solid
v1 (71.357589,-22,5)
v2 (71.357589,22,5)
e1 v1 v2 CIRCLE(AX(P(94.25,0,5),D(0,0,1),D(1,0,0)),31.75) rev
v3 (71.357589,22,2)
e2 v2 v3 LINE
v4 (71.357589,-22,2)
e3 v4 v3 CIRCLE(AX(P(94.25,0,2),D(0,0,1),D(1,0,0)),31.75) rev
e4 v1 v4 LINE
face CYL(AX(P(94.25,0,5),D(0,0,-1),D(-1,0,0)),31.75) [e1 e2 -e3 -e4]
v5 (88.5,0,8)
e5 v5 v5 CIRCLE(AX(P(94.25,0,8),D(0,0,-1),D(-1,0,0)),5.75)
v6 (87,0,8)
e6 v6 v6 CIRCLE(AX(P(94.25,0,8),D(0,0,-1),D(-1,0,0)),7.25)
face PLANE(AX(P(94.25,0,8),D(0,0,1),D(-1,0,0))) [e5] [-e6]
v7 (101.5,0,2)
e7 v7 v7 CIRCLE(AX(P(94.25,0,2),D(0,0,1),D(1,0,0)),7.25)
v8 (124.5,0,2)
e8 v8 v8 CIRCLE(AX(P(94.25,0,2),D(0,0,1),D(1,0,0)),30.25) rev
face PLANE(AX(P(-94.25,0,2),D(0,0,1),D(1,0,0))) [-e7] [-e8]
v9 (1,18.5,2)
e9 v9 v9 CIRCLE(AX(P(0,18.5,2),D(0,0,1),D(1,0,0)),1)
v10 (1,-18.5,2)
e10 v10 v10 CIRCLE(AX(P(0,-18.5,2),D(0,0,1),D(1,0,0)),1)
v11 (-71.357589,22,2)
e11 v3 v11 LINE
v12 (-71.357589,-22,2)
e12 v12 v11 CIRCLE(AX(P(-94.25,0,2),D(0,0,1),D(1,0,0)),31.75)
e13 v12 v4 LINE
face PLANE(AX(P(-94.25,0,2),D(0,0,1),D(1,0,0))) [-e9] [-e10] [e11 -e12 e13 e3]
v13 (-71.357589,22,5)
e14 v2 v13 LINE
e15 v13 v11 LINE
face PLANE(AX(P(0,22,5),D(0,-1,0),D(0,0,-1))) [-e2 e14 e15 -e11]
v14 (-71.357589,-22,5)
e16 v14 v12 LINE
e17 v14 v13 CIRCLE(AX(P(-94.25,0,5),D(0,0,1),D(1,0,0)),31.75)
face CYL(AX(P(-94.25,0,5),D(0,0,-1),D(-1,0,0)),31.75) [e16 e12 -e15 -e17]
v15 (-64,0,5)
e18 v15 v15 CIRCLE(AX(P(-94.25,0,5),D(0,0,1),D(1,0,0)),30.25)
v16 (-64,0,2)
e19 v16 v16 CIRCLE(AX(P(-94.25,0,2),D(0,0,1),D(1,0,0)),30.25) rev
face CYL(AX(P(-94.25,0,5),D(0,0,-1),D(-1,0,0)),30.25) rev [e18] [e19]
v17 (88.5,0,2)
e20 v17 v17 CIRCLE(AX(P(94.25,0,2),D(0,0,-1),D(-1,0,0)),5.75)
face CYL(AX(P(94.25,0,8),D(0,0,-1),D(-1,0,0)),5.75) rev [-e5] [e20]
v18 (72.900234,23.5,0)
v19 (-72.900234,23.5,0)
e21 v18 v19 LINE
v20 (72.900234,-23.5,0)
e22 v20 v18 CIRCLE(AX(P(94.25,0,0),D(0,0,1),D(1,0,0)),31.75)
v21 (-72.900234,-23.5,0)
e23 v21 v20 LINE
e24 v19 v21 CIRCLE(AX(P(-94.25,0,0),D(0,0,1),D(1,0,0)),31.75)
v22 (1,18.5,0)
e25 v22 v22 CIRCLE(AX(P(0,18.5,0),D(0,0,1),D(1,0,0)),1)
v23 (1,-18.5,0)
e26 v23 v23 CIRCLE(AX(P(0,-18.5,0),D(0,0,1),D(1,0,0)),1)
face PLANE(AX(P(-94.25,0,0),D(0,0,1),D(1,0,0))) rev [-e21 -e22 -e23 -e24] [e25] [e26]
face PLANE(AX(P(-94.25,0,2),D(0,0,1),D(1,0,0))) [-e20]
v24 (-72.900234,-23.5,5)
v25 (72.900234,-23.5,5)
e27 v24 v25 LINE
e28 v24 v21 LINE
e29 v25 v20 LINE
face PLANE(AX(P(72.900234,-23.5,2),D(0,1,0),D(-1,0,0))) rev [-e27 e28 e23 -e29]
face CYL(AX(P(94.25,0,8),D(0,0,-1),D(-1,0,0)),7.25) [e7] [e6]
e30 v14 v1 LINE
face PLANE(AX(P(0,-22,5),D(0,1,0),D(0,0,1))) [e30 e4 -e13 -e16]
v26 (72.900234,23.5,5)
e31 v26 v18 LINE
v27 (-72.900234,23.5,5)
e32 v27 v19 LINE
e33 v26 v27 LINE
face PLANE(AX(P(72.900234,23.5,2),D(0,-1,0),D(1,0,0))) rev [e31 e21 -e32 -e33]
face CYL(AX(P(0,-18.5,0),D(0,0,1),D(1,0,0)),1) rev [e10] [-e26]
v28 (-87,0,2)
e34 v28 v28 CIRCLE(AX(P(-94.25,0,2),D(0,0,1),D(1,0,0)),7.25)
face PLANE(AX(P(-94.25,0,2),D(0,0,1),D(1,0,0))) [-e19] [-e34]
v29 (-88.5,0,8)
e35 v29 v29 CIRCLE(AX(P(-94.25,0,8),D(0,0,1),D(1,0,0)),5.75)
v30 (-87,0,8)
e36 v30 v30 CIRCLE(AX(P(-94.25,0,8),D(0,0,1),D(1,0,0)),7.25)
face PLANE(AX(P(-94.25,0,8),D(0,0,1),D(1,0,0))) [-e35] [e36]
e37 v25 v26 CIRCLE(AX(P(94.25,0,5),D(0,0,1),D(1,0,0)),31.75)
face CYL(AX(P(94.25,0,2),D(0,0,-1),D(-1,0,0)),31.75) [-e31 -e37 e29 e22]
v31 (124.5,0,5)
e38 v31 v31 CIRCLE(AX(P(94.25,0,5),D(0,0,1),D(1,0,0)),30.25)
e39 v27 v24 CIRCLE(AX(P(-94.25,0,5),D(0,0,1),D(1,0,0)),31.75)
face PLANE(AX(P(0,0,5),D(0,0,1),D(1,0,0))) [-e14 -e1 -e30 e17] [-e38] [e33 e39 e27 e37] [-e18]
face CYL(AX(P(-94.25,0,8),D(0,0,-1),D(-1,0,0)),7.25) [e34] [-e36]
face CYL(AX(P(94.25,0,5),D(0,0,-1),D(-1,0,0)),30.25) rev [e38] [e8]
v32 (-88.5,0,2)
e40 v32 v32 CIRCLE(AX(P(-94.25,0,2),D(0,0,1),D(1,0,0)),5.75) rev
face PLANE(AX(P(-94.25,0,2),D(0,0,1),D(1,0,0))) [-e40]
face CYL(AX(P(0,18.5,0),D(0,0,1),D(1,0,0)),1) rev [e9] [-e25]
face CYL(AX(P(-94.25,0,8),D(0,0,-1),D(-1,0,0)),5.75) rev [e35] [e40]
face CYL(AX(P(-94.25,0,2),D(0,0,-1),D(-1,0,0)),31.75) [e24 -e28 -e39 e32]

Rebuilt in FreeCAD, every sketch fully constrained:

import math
import FreeCAD as App
import Part
import Sketcher

V = App.Vector
Q = App.Units.Quantity

doc = App.newDocument("Part")
body = doc.addObject("PartDesign::Body", "Body")

# Sketch on XY plane
sketch1 = body.newObject("Sketcher::SketchObject", "Sketch")
sketch1.AttachmentSupport = (doc.getObject("XY_Plane"), [""])
sketch1.MapMode = "FlatFace"
sketch1.addGeometry(Part.LineSegment(V(-73, -24, 0), V(73, -24, 0)), False)
sketch1.addGeometry(Part.ArcOfCircle(Part.Circle(V(94, 0, 0), V(0, 0, 1), 32), math.radians(-132), math.radians(132)), False)
sketch1.addGeometry(Part.LineSegment(V(73, 24, 0), V(-73, 24, 0)), False)
sketch1.addGeometry(Part.ArcOfCircle(Part.Circle(V(-94, 0, 0), V(0, 0, 1), 32), math.radians(48), math.radians(312)), False)
sketch1.addConstraint(Sketcher.Constraint("Coincident", 0, 2, 1, 1))
sketch1.addConstraint(Sketcher.Constraint("Coincident", 1, 2, 2, 1))
sketch1.addConstraint(Sketcher.Constraint("Coincident", 2, 2, 3, 1))
sketch1.addConstraint(Sketcher.Constraint("Coincident", 3, 2, 0, 1))
sketch1.addConstraint(Sketcher.Constraint("Horizontal", 0))
sketch1.addConstraint(Sketcher.Constraint("Horizontal", 2))
sketch1.addConstraint(Sketcher.Constraint("Equal", 1, 3))
sketch1.addConstraint(Sketcher.Constraint("Symmetric", 1, 3, 3, 3, -1, 1))
sketch1.addConstraint(Sketcher.Constraint("Symmetric", 0, 2, 1, 2, -1))
sketch1.addConstraint(Sketcher.Constraint("Radius", 1, Q("31.75 mm")))
sketch1.addConstraint(Sketcher.Constraint("DistanceY", 0, 2, 1, 2, Q("47 mm")))
sketch1.addConstraint(Sketcher.Constraint("DistanceX", 3, 3, 1, 3, Q("188.5 mm")))
pad1 = body.newObject("PartDesign::Pad", "Pad")
pad1.Profile = sketch1
pad1.Length = 2

# Sketch on XY plane
sketch2 = body.newObject("Sketcher::SketchObject", "Sketch001")
sketch2.AttachmentSupport = (doc.getObject("XY_Plane"), [""])
sketch2.MapMode = "FlatFace"
sketch2.AttachmentOffset = App.Placement(V(0, 0, 2), App.Rotation())
sketch2.addGeometry(Part.ArcOfCircle(Part.Circle(V(-94, 0, 0), V(0, 0, 1), 32), math.radians(48), math.radians(312)), False)
sketch2.addGeometry(Part.LineSegment(V(-73, -24, 0), V(73, -24, 0)), False)
sketch2.addGeometry(Part.ArcOfCircle(Part.Circle(V(94, 0, 0), V(0, 0, 1), 32), math.radians(-132), math.radians(132)), False)
sketch2.addGeometry(Part.LineSegment(V(73, 24, 0), V(-73, 24, 0)), False)
sketch2.addGeometry(Part.ArcOfCircle(Part.Circle(V(-94, 0, 0), V(0, 0, 1), 30), math.radians(-47), math.radians(0)), False)
sketch2.addGeometry(Part.ArcOfCircle(Part.Circle(V(-94, 0, 0), V(0, 0, 1), 30), math.radians(47), math.radians(313)), False)
sketch2.addGeometry(Part.ArcOfCircle(Part.Circle(V(-94, 0, 0), V(0, 0, 1), 30), math.radians(0), math.radians(47)), False)
sketch2.addGeometry(Part.ArcOfCircle(Part.Circle(V(94, 0, 0), V(0, 0, 1), 32), math.radians(136), math.radians(224)), False)
sketch2.addGeometry(Part.LineSegment(V(71, -22, 0), V(-71, -22, 0)), False)
sketch2.addGeometry(Part.ArcOfCircle(Part.Circle(V(-94, 0, 0), V(0, 0, 1), 32), math.radians(-44), math.radians(44)), False)
sketch2.addGeometry(Part.LineSegment(V(-71, 22, 0), V(71, 22, 0)), False)
sketch2.addGeometry(Part.ArcOfCircle(Part.Circle(V(94, 0, 0), V(0, 0, 1), 30), math.radians(0), math.radians(133)), False)
sketch2.addGeometry(Part.ArcOfCircle(Part.Circle(V(94, 0, 0), V(0, 0, 1), 30), math.radians(-133), math.radians(0)), False)
sketch2.addGeometry(Part.ArcOfCircle(Part.Circle(V(94, 0, 0), V(0, 0, 1), 30), math.radians(133), math.radians(227)), False)
sketch2.addConstraint(Sketcher.Constraint("Coincident", 0, 2, 1, 1))
sketch2.addConstraint(Sketcher.Constraint("Coincident", 1, 2, 2, 1))
sketch2.addConstraint(Sketcher.Constraint("Coincident", 2, 2, 3, 1))
sketch2.addConstraint(Sketcher.Constraint("Coincident", 3, 2, 0, 1))
sketch2.addConstraint(Sketcher.Constraint("Tangent", 4, 1, 5, 2))
sketch2.addConstraint(Sketcher.Constraint("Tangent", 5, 1, 6, 2))
sketch2.addConstraint(Sketcher.Constraint("Tangent", 6, 1, 4, 2))
sketch2.addConstraint(Sketcher.Constraint("Coincident", 7, 2, 8, 1))
sketch2.addConstraint(Sketcher.Constraint("Coincident", 8, 2, 9, 1))
sketch2.addConstraint(Sketcher.Constraint("Coincident", 9, 2, 10, 1))
sketch2.addConstraint(Sketcher.Constraint("Coincident", 10, 2, 7, 1))
sketch2.addConstraint(Sketcher.Constraint("Tangent", 11, 1, 12, 2))
sketch2.addConstraint(Sketcher.Constraint("Tangent", 12, 1, 13, 2))
sketch2.addConstraint(Sketcher.Constraint("Tangent", 13, 1, 11, 2))
sketch2.addConstraint(Sketcher.Constraint("Horizontal", 1))
sketch2.addConstraint(Sketcher.Constraint("Horizontal", 3))
sketch2.addConstraint(Sketcher.Constraint("Horizontal", 8))
sketch2.addConstraint(Sketcher.Constraint("Horizontal", 10))
sketch2.addConstraint(Sketcher.Constraint("Coincident", 4, 3, 0, 3))
sketch2.addConstraint(Sketcher.Constraint("Coincident", 7, 3, 2, 3))
sketch2.addConstraint(Sketcher.Constraint("Coincident", 9, 3, 0, 3))
sketch2.addConstraint(Sketcher.Constraint("Coincident", 11, 3, 2, 3))
sketch2.addConstraint(Sketcher.Constraint("Equal", 0, 2))
sketch2.addConstraint(Sketcher.Constraint("Equal", 2, 7))
sketch2.addConstraint(Sketcher.Constraint("Equal", 7, 9))
sketch2.addConstraint(Sketcher.Constraint("Equal", 6, 11))
sketch2.addConstraint(Sketcher.Constraint("Symmetric", 0, 3, 2, 3, -1, 1))
sketch2.addConstraint(Sketcher.Constraint("Symmetric", 4, 1, 12, 1, -2))
sketch2.addConstraint(Sketcher.Constraint("PointOnObject", 6, 1, -1))
sketch2.addConstraint(Sketcher.Constraint("PointOnObject", 11, 1, -1))
sketch2.addConstraint(Sketcher.Constraint("Horizontal", 4, 1, 7, 2))
sketch2.addConstraint(Sketcher.Constraint("Horizontal", 5, 1, 9, 2))
sketch2.addConstraint(Sketcher.Constraint("Horizontal", 10, 2, 13, 1))
sketch2.addConstraint(Sketcher.Constraint("Vertical", 1, 2, 2, 2))
sketch2.addConstraint(Sketcher.Constraint("Vertical", 4, 1, 5, 1))
sketch2.addConstraint(Sketcher.Constraint("Radius", 0, Q("31.75 mm")))
sketch2.addConstraint(Sketcher.Constraint("Radius", 4, Q("30.25 mm")))
sketch2.addConstraint(Sketcher.Constraint("DistanceY", 4, 1, -1, 1, Q("22 mm")))
sketch2.addConstraint(Sketcher.Constraint("DistanceX", 6, 1, -1, 1, Q("64 mm")))
sketch2.addConstraint(Sketcher.Constraint("DistanceY", 0, 2, -1, 1, Q("23.5 mm")))
pad2 = body.newObject("PartDesign::Pad", "Pad001")
pad2.Profile = sketch2
pad2.Length = 3

# Sketch on XY plane
sketch3 = body.newObject("Sketcher::SketchObject", "Sketch002")
sketch3.AttachmentSupport = (doc.getObject("XY_Plane"), [""])
sketch3.MapMode = "FlatFace"
sketch3.AttachmentOffset = App.Placement(V(0, 0, 2), App.Rotation())
sketch3.addGeometry(Part.Circle(V(0, -18.5, 0), V(0, 0, 1), 1), False)
sketch3.addGeometry(Part.Circle(V(0, 18.5, 0), V(0, 0, 1), 1), False)
sketch3.addConstraint(Sketcher.Constraint("Equal", 0, 1))
sketch3.addConstraint(Sketcher.Constraint("Symmetric", 0, 3, 1, 3, -1, 1))
sketch3.addConstraint(Sketcher.Constraint("PointOnObject", 0, 3, -2))
sketch3.addConstraint(Sketcher.Constraint("Diameter", 0, Q("2 mm")))
sketch3.addConstraint(Sketcher.Constraint("DistanceY", 0, 3, 1, 3, Q("37 mm")))
pocket1 = body.newObject("PartDesign::Pocket", "Pocket")
pocket1.Profile = sketch3
pocket1.Type = "ThroughAll"
pocket1.Midplane = True

# Sketch on XY plane
sketch4 = body.newObject("Sketcher::SketchObject", "Sketch003")
sketch4.AttachmentSupport = (doc.getObject("XY_Plane"), [""])
sketch4.MapMode = "FlatFace"
sketch4.AttachmentOffset = App.Placement(V(0, 0, 2), App.Rotation())
sketch4.addGeometry(Part.Circle(V(-94, 0, 0), V(0, 0, 1), 7), False)
sketch4.addGeometry(Part.Circle(V(-94, 0, 0), V(0, 0, 1), 6), False)
sketch4.addConstraint(Sketcher.Constraint("Coincident", 1, 3, 0, 3))
sketch4.addConstraint(Sketcher.Constraint("PointOnObject", 0, 3, -1))
sketch4.addConstraint(Sketcher.Constraint("Diameter", 0, Q("14.5 mm")))
sketch4.addConstraint(Sketcher.Constraint("Diameter", 1, Q("11.5 mm")))
sketch4.addConstraint(Sketcher.Constraint("DistanceX", 0, 3, -1, 1, Q("94.25 mm")))
pad3 = body.newObject("PartDesign::Pad", "Pad002")
pad3.Profile = sketch4
pad3.Length = 6
doc.recompute()

mirrored = body.newObject("PartDesign::Mirrored", "Mirrored")
mirrored.Originals = [pad3]
mirrored.MirrorPlane = (doc.getObject("YZ_Plane"), [""])
body.Tip = mirrored

doc.recompute()
